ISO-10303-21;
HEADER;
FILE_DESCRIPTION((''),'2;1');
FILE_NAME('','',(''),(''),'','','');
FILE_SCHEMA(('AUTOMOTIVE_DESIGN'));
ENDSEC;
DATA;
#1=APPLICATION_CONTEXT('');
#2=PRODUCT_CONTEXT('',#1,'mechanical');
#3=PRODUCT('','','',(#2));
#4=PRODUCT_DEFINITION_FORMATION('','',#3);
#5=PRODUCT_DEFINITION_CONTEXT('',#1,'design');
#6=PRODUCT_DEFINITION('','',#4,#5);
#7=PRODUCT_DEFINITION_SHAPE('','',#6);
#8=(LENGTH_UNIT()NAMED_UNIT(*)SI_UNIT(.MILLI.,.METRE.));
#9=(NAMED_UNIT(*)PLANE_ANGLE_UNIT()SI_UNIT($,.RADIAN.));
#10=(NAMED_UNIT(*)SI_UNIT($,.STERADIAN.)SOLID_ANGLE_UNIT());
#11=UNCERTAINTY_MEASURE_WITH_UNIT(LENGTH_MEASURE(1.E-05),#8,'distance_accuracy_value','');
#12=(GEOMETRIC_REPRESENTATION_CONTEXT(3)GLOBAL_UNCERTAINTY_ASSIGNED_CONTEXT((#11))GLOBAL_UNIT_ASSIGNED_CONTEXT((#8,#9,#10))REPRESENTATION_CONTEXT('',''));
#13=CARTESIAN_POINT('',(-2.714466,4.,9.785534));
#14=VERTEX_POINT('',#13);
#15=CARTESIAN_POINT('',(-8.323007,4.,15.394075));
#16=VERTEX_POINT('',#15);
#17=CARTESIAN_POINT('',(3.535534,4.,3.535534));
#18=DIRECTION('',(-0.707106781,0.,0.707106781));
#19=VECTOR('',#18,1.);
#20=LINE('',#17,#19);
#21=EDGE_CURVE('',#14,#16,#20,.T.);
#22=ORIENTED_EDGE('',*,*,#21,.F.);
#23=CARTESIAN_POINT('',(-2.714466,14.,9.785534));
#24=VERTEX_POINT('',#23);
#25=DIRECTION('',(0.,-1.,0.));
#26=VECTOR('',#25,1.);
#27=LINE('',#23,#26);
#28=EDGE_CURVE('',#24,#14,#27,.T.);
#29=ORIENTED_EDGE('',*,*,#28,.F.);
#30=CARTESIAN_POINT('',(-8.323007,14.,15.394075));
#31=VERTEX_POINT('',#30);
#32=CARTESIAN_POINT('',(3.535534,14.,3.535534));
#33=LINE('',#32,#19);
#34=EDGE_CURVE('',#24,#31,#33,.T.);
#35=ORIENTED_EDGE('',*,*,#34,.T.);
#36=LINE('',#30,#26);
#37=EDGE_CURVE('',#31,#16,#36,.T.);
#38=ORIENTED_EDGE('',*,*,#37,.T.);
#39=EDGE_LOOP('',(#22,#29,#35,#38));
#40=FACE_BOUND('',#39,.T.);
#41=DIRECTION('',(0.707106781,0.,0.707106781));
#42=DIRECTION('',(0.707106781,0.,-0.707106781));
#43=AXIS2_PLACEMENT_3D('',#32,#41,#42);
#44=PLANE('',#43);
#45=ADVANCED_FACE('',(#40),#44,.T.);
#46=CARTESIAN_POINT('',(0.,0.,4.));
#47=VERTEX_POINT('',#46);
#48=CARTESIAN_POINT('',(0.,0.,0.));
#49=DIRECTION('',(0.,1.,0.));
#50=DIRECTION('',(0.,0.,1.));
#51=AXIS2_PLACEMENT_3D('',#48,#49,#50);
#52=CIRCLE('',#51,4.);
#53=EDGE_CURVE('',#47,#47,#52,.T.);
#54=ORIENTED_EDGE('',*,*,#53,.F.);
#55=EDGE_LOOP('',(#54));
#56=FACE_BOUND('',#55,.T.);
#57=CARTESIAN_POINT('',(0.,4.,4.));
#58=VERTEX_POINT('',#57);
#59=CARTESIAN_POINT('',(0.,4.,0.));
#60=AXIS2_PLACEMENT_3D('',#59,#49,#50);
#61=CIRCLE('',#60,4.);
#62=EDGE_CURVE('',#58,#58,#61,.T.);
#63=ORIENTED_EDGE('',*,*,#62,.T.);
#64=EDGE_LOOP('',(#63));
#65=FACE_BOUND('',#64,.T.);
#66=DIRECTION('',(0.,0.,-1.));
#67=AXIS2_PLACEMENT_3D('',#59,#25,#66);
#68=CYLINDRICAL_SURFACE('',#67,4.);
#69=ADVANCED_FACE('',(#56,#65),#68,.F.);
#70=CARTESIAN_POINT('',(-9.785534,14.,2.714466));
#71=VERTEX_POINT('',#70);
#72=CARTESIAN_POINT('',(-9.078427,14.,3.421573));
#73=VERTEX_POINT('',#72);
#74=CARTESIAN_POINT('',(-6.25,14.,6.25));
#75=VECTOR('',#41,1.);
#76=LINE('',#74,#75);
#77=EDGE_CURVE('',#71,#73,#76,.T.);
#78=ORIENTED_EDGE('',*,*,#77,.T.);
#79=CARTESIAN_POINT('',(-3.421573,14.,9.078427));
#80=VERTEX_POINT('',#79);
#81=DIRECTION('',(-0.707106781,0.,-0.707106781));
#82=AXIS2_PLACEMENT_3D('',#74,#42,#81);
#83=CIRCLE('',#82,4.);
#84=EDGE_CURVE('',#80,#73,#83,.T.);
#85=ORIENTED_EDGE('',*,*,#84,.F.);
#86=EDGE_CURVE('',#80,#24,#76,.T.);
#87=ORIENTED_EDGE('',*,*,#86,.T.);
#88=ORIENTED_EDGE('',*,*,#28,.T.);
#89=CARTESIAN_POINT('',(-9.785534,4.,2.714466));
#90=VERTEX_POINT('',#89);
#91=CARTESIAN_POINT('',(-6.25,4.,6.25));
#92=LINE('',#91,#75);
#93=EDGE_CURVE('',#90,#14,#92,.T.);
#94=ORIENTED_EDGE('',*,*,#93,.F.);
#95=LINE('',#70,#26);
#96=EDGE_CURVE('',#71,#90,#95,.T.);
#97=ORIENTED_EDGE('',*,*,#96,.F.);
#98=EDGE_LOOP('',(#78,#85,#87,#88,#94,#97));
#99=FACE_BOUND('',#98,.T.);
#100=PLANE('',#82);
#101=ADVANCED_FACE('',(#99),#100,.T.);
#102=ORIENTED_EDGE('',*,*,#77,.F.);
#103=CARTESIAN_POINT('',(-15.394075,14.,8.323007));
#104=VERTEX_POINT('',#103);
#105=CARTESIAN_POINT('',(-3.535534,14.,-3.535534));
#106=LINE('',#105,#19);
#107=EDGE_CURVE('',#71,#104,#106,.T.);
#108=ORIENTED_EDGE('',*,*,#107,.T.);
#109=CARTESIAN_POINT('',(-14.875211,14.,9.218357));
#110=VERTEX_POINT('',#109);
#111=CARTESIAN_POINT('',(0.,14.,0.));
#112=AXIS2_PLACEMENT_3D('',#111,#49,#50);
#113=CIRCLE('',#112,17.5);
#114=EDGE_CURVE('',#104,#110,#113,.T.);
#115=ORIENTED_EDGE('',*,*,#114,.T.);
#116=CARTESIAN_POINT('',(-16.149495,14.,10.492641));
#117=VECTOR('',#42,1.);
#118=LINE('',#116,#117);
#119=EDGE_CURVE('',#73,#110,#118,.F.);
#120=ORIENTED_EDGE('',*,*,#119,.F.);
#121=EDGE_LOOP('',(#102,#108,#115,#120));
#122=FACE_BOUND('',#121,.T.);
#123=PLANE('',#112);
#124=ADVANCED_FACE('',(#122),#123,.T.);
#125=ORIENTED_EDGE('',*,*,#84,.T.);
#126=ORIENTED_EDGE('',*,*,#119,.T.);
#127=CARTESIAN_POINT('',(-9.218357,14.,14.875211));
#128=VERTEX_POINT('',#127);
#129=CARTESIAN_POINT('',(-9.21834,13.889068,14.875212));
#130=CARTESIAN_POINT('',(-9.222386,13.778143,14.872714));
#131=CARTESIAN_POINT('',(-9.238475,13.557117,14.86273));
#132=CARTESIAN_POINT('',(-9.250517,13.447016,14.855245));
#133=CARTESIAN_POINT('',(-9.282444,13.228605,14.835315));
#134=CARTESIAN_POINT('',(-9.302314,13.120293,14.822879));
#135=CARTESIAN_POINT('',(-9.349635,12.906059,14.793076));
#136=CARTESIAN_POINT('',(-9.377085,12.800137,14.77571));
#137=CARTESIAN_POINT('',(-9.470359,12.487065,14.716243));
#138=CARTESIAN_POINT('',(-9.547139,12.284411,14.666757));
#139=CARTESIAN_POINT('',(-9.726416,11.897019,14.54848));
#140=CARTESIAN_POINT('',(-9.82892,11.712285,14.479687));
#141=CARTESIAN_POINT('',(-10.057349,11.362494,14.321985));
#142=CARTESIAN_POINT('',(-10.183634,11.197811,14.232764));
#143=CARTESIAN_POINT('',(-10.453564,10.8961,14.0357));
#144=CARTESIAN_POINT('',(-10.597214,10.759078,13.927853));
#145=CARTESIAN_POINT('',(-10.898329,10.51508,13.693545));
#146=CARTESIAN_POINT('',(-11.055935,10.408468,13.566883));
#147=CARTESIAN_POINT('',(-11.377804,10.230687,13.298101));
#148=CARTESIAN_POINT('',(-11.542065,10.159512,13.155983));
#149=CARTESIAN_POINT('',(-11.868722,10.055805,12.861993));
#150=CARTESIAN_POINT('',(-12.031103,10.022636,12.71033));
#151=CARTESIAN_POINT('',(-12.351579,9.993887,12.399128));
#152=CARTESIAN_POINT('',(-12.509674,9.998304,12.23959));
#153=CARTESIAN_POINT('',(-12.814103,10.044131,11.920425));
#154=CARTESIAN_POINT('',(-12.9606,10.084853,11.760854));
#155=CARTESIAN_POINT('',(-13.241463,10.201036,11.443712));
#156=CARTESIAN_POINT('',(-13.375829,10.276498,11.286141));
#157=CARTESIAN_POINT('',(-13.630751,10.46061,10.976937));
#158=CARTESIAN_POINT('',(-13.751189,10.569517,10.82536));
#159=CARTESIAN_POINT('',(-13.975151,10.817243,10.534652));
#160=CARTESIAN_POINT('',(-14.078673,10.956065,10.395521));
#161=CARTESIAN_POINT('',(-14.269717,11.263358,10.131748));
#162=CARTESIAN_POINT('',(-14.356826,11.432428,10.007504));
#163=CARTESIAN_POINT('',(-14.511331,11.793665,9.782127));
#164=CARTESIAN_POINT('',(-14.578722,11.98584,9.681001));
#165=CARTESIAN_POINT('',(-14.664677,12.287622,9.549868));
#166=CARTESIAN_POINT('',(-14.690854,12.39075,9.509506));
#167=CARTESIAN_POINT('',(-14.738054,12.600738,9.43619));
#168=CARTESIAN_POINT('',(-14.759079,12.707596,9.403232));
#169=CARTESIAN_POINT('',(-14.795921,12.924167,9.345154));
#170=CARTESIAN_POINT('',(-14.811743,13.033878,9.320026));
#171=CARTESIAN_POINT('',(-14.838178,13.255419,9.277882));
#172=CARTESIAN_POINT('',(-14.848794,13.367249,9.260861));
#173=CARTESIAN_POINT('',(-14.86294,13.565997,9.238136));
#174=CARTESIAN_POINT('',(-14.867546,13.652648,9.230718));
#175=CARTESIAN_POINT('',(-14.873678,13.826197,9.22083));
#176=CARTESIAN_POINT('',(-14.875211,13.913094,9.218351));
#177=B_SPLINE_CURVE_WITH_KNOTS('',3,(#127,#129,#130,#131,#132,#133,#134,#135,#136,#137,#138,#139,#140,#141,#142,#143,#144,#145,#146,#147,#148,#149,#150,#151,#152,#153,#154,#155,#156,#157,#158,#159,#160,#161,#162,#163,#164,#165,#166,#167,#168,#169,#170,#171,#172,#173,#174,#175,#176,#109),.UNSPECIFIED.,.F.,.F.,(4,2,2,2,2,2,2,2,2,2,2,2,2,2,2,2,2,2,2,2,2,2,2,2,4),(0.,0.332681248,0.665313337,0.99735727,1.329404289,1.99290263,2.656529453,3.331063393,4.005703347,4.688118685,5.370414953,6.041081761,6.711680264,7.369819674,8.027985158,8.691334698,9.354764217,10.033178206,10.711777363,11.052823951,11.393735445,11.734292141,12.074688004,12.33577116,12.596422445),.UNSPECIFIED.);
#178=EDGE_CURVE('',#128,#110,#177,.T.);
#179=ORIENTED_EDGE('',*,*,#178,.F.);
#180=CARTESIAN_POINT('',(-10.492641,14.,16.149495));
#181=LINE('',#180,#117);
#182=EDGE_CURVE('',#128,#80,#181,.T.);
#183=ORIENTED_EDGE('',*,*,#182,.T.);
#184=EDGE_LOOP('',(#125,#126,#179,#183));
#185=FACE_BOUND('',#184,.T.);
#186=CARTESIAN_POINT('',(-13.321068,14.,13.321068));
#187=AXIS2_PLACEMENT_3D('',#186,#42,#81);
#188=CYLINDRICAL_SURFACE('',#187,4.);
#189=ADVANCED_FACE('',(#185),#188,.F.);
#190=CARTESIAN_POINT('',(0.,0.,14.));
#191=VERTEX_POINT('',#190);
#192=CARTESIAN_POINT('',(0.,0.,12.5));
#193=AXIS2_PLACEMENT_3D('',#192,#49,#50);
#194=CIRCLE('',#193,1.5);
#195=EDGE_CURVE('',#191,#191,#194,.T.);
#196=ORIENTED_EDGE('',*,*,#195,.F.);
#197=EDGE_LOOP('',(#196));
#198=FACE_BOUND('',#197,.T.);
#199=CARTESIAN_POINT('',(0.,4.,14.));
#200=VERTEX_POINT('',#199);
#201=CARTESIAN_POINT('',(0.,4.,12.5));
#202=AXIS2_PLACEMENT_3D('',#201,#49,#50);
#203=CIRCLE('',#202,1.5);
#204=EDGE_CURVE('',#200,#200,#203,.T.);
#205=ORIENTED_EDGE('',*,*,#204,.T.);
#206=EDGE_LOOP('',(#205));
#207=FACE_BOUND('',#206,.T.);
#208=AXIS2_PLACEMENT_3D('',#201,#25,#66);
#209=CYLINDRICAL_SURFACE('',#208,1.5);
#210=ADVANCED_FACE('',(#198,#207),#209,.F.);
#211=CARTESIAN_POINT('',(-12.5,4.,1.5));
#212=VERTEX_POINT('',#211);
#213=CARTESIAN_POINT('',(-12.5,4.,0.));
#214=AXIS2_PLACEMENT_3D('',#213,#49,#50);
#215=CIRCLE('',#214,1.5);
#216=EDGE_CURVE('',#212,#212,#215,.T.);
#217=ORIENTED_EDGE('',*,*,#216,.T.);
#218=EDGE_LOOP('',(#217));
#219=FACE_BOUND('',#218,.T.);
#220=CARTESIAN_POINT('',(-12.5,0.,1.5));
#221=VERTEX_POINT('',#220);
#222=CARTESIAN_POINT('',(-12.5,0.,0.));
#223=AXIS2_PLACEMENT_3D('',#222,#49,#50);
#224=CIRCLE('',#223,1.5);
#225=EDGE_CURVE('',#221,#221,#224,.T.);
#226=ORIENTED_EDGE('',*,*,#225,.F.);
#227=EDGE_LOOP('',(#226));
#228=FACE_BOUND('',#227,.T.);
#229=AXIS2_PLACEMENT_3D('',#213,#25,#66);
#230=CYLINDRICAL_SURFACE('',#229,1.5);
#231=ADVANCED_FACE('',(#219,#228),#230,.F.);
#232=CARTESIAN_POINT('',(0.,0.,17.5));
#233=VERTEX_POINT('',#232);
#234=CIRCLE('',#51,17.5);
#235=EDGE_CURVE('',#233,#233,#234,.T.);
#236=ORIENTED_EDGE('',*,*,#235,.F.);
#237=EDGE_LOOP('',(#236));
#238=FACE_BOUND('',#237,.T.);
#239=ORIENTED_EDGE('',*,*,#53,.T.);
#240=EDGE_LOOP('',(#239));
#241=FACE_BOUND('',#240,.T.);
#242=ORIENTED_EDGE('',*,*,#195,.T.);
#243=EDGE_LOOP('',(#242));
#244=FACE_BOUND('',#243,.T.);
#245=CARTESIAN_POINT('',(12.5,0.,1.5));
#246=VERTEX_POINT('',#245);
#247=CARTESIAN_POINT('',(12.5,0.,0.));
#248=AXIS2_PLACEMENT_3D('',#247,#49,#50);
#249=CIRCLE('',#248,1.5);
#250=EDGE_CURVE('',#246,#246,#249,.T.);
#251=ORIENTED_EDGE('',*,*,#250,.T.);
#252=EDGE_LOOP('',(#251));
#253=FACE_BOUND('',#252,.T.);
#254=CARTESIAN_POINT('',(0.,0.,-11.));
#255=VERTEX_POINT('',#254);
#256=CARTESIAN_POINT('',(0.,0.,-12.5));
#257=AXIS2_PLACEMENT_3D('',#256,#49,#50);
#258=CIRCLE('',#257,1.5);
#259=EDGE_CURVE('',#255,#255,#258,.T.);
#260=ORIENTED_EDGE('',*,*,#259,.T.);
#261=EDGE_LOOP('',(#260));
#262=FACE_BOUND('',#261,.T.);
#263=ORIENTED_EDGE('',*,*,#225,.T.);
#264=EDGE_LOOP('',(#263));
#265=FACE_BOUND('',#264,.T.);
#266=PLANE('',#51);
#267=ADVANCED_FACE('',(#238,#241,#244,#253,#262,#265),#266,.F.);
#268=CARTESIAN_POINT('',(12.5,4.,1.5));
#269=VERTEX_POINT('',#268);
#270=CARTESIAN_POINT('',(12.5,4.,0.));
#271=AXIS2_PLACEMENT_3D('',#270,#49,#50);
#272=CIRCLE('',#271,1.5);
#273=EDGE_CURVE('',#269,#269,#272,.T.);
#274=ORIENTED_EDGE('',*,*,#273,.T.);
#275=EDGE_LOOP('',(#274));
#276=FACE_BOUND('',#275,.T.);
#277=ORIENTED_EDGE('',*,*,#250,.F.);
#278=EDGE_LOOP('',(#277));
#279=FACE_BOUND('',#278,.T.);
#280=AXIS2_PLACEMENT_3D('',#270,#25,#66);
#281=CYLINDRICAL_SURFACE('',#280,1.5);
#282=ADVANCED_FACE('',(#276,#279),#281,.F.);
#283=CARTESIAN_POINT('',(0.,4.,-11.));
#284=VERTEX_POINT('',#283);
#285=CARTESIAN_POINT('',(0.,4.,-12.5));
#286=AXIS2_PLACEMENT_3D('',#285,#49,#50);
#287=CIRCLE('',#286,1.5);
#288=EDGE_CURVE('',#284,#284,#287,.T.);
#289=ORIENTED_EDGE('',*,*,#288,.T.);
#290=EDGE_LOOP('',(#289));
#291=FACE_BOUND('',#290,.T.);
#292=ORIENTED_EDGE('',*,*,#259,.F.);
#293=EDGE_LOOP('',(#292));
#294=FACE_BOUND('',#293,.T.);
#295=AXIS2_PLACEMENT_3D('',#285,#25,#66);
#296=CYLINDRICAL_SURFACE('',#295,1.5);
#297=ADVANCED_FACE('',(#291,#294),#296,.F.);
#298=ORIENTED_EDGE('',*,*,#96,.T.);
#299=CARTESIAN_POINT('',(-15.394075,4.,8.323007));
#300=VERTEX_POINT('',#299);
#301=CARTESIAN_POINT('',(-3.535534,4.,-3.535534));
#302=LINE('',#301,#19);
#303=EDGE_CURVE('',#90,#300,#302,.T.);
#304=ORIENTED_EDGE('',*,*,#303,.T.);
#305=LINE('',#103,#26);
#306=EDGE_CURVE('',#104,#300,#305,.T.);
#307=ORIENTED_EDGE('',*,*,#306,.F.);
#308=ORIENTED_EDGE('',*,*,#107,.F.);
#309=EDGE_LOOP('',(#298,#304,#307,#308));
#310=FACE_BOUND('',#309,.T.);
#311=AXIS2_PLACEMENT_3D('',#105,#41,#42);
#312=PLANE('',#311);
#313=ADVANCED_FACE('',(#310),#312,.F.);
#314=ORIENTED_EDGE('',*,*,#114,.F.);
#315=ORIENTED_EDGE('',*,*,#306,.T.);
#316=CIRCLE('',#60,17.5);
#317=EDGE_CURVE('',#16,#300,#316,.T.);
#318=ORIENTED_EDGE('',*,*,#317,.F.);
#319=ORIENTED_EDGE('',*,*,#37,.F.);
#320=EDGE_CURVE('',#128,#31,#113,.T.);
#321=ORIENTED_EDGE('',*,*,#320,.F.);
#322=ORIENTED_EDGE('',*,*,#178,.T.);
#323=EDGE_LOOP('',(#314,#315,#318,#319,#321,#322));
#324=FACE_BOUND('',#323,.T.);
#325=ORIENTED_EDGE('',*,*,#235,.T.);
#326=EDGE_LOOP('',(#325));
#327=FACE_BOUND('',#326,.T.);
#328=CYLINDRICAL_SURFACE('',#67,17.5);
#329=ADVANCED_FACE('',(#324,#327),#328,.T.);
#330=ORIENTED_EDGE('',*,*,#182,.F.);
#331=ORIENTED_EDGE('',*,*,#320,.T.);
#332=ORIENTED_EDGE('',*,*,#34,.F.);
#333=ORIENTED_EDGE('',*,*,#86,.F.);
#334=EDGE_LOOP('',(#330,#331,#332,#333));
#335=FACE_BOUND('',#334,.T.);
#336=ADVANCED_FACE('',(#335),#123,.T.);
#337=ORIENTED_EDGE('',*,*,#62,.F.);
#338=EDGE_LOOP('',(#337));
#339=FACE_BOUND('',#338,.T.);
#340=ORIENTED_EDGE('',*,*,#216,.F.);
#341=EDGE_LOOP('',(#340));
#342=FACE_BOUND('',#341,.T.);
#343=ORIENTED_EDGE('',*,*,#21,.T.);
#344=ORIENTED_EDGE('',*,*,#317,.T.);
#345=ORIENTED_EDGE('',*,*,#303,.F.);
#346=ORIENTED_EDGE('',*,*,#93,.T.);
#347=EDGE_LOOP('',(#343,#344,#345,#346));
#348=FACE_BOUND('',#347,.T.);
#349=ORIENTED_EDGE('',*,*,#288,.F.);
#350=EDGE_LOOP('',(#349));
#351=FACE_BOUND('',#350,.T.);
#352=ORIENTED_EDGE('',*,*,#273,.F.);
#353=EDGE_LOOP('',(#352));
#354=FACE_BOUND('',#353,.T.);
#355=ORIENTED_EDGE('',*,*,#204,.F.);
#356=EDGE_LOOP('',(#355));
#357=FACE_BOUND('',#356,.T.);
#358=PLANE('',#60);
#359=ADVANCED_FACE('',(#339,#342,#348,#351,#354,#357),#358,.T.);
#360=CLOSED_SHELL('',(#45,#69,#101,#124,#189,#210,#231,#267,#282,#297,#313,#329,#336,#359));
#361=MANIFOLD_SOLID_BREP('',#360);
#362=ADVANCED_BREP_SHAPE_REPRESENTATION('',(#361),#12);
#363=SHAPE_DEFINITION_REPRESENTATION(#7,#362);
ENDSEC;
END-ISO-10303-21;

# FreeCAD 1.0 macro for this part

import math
import FreeCAD as App
import Part
import Sketcher

V = App.Vector
Q = App.Units.Quantity

doc = App.newDocument("Part")
body = doc.addObject("PartDesign::Body", "Body")

sketch1 = doc.addObject("Sketcher::SketchObject", "Sketch")
body.addObject(sketch1)
sketch1.AttachmentSupport = (doc.XZ_Plane, [""])
sketch1.MapMode = "FlatFace"
sketch1.addGeometry(Part.Circle(V(0, 0, 0), V(0, 0, 1), 17.5), False)
sketch1.addGeometry(Part.Circle(V(0, -12.5, 0), V(0, 0, 1), 1.5), False)
sketch1.addGeometry(Part.Circle(V(-12.5, 0, 0), V(0, 0, 1), 1.5), False)
sketch1.addGeometry(Part.Circle(V(12.5, 0, 0), V(0, 0, 1), 1.5), False)
sketch1.addGeometry(Part.Circle(V(0, 0, 0), V(0, 0, 1), 4), False)
sketch1.addGeometry(Part.Circle(V(0, 12.5, 0), V(0, 0, 1), 1.5), False)
sketch1.addConstraint(Sketcher.Constraint("Coincident", 0, 3, -1, 1))
sketch1.addConstraint(Sketcher.Constraint("Coincident", 4, 3, -1, 1))
sketch1.addConstraint(Sketcher.Constraint("Equal", 1, 2))
sketch1.addConstraint(Sketcher.Constraint("Equal", 2, 3))
sketch1.addConstraint(Sketcher.Constraint("Equal", 3, 5))
sketch1.addConstraint(Sketcher.Constraint("Symmetric", 2, 3, 3, 3, -1, 1))
sketch1.addConstraint(Sketcher.Constraint("Symmetric", 1, 3, 5, 3, -1, 1))
sketch1.addConstraint(Sketcher.Constraint("PointOnObject", 1, 3, -2))
sketch1.addConstraint(Sketcher.Constraint("PointOnObject", 2, 3, -1))
sketch1.addConstraint(Sketcher.Constraint("Diameter", 0, 35.0))
sketch1.addConstraint(Sketcher.Constraint("Diameter", 1, 3.0))
sketch1.addConstraint(Sketcher.Constraint("Diameter", 4, 8.0))
sketch1.addConstraint(Sketcher.Constraint("DistanceX", 2, 3, 3, 3, 25.0))
sketch1.addConstraint(Sketcher.Constraint("DistanceY", 1, 3, 5, 3, 25.0))
pad1 = doc.addObject("PartDesign::Pad", "Pad")
body.addObject(pad1)
pad1.Profile = sketch1
pad1.Length = 4
pad1.Reversed = True

sketch2 = doc.addObject("Sketcher::SketchObject", "Sketch001")
body.addObject(sketch2)
sketch2.AttachmentSupport = (doc.XZ_Plane, [""])
sketch2.MapMode = "FlatFace"
sketch2.AttachmentOffset = App.Placement(V(0, 0, -4), App.Rotation())
sketch2.addGeometry(Part.LineSegment(V(-10, 3, 0), V(-15, 8, 0)), False)
sketch2.addGeometry(Part.ArcOfCircle(Part.Circle(V(0, 0, 0), V(0, 0, 1), 18), math.radians(118), math.radians(152)), False)
sketch2.addGeometry(Part.LineSegment(V(-8, 15, 0), V(-3, 10, 0)), False)
sketch2.addGeometry(Part.LineSegment(V(-3, 10, 0), V(-10, 3, 0)), False)
sketch2.addConstraint(Sketcher.Constraint("Coincident", 0, 2, 1, 2))
sketch2.addConstraint(Sketcher.Constraint("Coincident", 1, 1, 2, 1))
sketch2.addConstraint(Sketcher.Constraint("Coincident", 2, 2, 3, 1))
sketch2.addConstraint(Sketcher.Constraint("Coincident", 3, 2, 0, 1))
sketch2.addConstraint(Sketcher.Constraint("Coincident", 1, 3, -1, 1))
sketch2.addConstraint(Sketcher.Constraint("Parallel", 0, 2))
sketch2.addConstraint(Sketcher.Constraint("Perpendicular", 2, 3))
sketch2.addConstraint(Sketcher.Constraint("Equal", 0, 2))
sketch2.addConstraint(Sketcher.Constraint("Radius", 1, 17.5))
sketch2.addConstraint(Sketcher.Constraint("Angle", 0, Q("135 deg")))
sketch2.addConstraint(Sketcher.Constraint("Distance", 3, 10.0))
sketch2.addConstraint(Sketcher.Constraint("DistanceX", 1, 1, 2, 2, 5.608541))
pad2 = doc.addObject("PartDesign::Pad", "Pad001")
body.addObject(pad2)
pad2.Profile = sketch2
pad2.Length = 10
pad2.Reversed = True

sketch3 = doc.addObject("Sketcher::SketchObject", "Sketch002")
body.addObject(sketch3)
sketch3.Placement = App.Placement(V(-6.25, 0, 6.25), App.Rotation(V(-0.707106781, 0, -0.707106781), V(0, 0.999999999, 0), V(0.707106781, 0, -0.707106781), "ZXY"))
sketch3.addGeometry(Part.Circle(V(0, 14, 0), V(0, 0, 1), 4), False)
sketch3.addConstraint(Sketcher.Constraint("PointOnObject", 0, 3, -2))
sketch3.addConstraint(Sketcher.Constraint("Diameter", 0, 8.0))
sketch3.addConstraint(Sketcher.Constraint("DistanceY", -1, 1, 0, 3, 14.0))
pocket1 = doc.addObject("PartDesign::Pocket", "Pocket")
body.addObject(pocket1)
pocket1.Profile = sketch3
pocket1.Length = 10

doc.recompute()
